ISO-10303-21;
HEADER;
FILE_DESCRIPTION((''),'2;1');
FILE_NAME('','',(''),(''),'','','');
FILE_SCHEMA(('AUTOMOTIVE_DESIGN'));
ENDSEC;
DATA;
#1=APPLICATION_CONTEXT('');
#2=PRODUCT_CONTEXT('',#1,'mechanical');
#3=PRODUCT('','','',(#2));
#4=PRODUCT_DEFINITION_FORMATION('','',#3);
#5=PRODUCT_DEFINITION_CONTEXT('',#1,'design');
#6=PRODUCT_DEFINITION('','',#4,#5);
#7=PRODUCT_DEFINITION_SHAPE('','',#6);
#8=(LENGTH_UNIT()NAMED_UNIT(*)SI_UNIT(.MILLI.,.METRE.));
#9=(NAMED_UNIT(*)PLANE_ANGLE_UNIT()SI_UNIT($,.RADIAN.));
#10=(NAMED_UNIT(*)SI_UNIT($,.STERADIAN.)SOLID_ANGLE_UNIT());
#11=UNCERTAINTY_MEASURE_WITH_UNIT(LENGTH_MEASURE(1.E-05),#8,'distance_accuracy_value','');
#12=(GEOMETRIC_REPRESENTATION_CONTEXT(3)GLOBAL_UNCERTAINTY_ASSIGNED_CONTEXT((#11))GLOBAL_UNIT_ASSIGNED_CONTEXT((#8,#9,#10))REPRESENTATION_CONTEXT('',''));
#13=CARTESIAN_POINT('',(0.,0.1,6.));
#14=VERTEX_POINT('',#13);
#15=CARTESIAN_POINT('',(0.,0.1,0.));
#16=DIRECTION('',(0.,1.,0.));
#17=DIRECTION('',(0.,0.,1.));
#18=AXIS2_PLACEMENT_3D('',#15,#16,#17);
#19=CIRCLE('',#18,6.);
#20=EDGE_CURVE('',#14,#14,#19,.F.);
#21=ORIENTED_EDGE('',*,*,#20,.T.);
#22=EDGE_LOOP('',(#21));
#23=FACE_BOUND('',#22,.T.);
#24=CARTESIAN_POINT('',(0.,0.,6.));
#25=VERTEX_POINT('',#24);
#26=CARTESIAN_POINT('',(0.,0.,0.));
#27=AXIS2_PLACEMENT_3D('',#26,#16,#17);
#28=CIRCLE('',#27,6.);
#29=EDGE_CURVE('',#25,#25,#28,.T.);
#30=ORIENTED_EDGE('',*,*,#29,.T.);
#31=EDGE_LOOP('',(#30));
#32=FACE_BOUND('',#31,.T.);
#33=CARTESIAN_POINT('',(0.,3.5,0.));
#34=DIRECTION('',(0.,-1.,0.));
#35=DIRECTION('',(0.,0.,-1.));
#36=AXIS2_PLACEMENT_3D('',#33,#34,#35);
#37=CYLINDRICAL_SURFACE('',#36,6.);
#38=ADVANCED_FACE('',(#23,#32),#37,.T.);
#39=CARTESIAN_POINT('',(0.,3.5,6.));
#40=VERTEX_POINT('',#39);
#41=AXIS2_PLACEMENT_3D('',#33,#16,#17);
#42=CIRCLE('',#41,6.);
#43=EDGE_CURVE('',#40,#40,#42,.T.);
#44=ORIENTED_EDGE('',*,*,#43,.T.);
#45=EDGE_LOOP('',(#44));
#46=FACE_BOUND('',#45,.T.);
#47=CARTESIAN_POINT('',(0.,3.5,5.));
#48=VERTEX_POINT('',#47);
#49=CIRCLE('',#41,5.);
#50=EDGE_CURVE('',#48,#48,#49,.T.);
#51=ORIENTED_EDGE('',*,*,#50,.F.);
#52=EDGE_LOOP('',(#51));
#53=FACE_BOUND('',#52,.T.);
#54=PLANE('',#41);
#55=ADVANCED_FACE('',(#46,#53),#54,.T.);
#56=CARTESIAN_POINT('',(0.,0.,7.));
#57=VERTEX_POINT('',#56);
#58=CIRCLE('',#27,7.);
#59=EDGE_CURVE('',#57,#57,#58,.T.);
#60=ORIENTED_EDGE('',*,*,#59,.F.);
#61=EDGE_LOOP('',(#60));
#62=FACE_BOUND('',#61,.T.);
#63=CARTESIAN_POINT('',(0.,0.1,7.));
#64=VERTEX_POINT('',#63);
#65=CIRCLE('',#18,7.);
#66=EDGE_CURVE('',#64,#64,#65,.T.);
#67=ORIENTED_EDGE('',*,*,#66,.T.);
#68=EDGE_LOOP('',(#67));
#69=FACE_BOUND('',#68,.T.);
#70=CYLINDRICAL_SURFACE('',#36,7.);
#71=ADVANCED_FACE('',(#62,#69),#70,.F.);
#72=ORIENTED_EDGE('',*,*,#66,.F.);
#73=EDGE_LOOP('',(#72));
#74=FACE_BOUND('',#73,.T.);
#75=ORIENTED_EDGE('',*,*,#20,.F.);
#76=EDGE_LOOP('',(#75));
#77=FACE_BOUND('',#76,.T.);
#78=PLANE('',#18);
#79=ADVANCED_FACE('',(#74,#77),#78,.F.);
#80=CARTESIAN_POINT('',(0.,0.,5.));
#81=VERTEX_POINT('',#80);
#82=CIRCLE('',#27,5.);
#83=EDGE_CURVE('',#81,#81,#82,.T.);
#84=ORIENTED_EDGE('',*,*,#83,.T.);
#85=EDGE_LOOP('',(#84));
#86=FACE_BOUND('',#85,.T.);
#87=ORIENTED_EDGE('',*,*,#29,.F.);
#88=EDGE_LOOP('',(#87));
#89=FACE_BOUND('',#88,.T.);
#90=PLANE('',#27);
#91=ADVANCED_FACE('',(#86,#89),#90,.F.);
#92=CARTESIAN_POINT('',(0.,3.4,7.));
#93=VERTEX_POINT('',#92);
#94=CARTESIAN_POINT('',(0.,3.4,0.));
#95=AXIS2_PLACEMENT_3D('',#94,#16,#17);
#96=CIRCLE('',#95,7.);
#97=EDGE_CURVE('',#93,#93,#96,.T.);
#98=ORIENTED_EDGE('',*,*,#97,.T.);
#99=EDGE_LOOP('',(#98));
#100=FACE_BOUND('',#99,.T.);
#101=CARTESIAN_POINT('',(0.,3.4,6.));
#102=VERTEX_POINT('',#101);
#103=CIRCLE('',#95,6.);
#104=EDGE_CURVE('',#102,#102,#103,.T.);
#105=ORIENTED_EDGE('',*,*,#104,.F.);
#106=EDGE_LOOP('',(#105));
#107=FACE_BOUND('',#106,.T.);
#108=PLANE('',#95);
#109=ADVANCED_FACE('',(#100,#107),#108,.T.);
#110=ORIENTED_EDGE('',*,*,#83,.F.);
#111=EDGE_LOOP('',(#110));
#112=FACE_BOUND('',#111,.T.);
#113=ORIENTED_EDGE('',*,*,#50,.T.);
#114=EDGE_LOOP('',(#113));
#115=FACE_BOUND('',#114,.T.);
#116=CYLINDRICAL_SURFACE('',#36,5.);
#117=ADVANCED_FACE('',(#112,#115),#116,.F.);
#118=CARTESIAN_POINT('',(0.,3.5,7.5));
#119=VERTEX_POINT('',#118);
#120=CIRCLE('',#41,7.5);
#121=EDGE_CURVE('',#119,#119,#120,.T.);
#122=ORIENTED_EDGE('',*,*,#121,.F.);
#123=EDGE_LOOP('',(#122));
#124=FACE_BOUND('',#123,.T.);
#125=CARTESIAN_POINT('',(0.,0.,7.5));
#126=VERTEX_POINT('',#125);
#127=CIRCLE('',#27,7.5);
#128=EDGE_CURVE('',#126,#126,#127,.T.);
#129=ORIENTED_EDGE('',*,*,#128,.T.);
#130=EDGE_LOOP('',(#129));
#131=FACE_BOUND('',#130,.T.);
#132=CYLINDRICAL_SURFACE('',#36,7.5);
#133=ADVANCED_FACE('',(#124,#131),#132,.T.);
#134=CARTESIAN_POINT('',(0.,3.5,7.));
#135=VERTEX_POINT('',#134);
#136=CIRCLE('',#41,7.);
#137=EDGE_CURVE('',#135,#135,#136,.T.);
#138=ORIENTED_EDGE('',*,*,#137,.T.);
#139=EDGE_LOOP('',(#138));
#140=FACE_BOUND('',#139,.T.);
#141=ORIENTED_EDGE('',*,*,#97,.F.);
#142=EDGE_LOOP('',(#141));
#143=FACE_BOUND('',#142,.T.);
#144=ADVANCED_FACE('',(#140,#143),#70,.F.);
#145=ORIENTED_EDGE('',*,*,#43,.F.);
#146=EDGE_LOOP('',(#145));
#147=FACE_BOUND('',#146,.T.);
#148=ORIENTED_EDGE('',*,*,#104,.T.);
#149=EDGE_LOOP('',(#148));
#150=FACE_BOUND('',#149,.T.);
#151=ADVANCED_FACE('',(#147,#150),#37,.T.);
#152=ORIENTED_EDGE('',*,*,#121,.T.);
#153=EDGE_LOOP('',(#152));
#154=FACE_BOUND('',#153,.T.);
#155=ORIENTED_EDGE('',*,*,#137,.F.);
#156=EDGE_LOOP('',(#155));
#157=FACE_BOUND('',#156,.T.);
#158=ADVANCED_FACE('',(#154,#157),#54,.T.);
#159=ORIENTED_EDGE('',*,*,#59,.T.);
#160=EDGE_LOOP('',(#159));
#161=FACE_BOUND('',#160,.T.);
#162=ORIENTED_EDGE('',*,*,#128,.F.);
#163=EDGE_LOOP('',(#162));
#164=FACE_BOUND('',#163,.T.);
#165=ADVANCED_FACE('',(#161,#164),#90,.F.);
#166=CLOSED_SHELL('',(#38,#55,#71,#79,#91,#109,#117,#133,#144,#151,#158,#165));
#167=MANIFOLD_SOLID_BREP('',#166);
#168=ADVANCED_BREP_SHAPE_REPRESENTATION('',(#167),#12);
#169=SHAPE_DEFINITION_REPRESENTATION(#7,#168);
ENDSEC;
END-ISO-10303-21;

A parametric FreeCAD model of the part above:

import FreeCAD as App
import Part
import Sketcher
Q = App.Units.Quantity

doc = App.newDocument("Part")
body = doc.addObject("PartDesign::Body", "Body")

# Sketch on XZ plane
sketch1 = body.newObject("Sketcher::SketchObject", "Sketch")
sketch1.AttachmentSupport = (doc.getObject("XZ_Plane"), [""])
sketch1.MapMode = "FlatFace"
sketch1.addGeometry([
    Part.Circle(App.Vector(0, 0, 0), App.Vector(0, 0, 1), 8),
    Part.Circle(App.Vector(0, 0, 0), App.Vector(0, 0, 1), 7),
], False)
sketch1.addConstraint([
    Sketcher.Constraint("Coincident", 0, 3, -1, 1),
    Sketcher.Constraint("Coincident", 1, 3, -1, 1),
    Sketcher.Constraint("Diameter", 0, Q("15 mm")),
    Sketcher.Constraint("Diameter", 1, Q("14 mm")),
])
pad1 = body.newObject("PartDesign::Pad", "Pad")
pad1.Profile = sketch1
pad1.Length = 3.5
pad1.Reversed = True

# Sketch on XZ plane
sketch2 = body.newObject("Sketcher::SketchObject", "Sketch001")
sketch2.AttachmentSupport = (doc.getObject("XZ_Plane"), [""])
sketch2.MapMode = "FlatFace"
sketch2.AttachmentOffset = App.Placement(App.Vector(0, 0, -0.1), App.Rotation())
sketch2.addGeometry([
    Part.Circle(App.Vector(0, 0, 0), App.Vector(0, 0, 1), 7),
    Part.Circle(App.Vector(0, 0, 0), App.Vector(0, 0, 1), 6),
], False)
sketch2.addConstraint([
    Sketcher.Constraint("Coincident", 0, 3, -1, 1),
    Sketcher.Constraint("Coincident", 1, 3, -1, 1),
    Sketcher.Constraint("Diameter", 0, Q("14 mm")),
    Sketcher.Constraint("Diameter", 1, Q("12 mm")),
])
pad2 = body.newObject("PartDesign::Pad", "Pad001")
pad2.Profile = sketch2
pad2.Length = 3.3
pad2.Reversed = True

# Sketch on XZ plane
sketch3 = body.newObject("Sketcher::SketchObject", "Sketch002")
sketch3.AttachmentSupport = (doc.getObject("XZ_Plane"), [""])
sketch3.MapMode = "FlatFace"
sketch3.addGeometry([
    Part.Circle(App.Vector(0, 0, 0), App.Vector(0, 0, 1), 6),
    Part.Circle(App.Vector(0, 0, 0), App.Vector(0, 0, 1), 5),
], False)
sketch3.addConstraint([
    Sketcher.Constraint("Coincident", 0, 3, -1, 1),
    Sketcher.Constraint("Coincident", 1, 3, -1, 1),
    Sketcher.Constraint("Diameter", 0, Q("12 mm")),
    Sketcher.Constraint("Diameter", 1, Q("10 mm")),
])
pad3 = body.newObject("PartDesign::Pad", "Pad002")
pad3.Profile = sketch3
pad3.Length = 3.5
pad3.Reversed = True

doc.recompute()
